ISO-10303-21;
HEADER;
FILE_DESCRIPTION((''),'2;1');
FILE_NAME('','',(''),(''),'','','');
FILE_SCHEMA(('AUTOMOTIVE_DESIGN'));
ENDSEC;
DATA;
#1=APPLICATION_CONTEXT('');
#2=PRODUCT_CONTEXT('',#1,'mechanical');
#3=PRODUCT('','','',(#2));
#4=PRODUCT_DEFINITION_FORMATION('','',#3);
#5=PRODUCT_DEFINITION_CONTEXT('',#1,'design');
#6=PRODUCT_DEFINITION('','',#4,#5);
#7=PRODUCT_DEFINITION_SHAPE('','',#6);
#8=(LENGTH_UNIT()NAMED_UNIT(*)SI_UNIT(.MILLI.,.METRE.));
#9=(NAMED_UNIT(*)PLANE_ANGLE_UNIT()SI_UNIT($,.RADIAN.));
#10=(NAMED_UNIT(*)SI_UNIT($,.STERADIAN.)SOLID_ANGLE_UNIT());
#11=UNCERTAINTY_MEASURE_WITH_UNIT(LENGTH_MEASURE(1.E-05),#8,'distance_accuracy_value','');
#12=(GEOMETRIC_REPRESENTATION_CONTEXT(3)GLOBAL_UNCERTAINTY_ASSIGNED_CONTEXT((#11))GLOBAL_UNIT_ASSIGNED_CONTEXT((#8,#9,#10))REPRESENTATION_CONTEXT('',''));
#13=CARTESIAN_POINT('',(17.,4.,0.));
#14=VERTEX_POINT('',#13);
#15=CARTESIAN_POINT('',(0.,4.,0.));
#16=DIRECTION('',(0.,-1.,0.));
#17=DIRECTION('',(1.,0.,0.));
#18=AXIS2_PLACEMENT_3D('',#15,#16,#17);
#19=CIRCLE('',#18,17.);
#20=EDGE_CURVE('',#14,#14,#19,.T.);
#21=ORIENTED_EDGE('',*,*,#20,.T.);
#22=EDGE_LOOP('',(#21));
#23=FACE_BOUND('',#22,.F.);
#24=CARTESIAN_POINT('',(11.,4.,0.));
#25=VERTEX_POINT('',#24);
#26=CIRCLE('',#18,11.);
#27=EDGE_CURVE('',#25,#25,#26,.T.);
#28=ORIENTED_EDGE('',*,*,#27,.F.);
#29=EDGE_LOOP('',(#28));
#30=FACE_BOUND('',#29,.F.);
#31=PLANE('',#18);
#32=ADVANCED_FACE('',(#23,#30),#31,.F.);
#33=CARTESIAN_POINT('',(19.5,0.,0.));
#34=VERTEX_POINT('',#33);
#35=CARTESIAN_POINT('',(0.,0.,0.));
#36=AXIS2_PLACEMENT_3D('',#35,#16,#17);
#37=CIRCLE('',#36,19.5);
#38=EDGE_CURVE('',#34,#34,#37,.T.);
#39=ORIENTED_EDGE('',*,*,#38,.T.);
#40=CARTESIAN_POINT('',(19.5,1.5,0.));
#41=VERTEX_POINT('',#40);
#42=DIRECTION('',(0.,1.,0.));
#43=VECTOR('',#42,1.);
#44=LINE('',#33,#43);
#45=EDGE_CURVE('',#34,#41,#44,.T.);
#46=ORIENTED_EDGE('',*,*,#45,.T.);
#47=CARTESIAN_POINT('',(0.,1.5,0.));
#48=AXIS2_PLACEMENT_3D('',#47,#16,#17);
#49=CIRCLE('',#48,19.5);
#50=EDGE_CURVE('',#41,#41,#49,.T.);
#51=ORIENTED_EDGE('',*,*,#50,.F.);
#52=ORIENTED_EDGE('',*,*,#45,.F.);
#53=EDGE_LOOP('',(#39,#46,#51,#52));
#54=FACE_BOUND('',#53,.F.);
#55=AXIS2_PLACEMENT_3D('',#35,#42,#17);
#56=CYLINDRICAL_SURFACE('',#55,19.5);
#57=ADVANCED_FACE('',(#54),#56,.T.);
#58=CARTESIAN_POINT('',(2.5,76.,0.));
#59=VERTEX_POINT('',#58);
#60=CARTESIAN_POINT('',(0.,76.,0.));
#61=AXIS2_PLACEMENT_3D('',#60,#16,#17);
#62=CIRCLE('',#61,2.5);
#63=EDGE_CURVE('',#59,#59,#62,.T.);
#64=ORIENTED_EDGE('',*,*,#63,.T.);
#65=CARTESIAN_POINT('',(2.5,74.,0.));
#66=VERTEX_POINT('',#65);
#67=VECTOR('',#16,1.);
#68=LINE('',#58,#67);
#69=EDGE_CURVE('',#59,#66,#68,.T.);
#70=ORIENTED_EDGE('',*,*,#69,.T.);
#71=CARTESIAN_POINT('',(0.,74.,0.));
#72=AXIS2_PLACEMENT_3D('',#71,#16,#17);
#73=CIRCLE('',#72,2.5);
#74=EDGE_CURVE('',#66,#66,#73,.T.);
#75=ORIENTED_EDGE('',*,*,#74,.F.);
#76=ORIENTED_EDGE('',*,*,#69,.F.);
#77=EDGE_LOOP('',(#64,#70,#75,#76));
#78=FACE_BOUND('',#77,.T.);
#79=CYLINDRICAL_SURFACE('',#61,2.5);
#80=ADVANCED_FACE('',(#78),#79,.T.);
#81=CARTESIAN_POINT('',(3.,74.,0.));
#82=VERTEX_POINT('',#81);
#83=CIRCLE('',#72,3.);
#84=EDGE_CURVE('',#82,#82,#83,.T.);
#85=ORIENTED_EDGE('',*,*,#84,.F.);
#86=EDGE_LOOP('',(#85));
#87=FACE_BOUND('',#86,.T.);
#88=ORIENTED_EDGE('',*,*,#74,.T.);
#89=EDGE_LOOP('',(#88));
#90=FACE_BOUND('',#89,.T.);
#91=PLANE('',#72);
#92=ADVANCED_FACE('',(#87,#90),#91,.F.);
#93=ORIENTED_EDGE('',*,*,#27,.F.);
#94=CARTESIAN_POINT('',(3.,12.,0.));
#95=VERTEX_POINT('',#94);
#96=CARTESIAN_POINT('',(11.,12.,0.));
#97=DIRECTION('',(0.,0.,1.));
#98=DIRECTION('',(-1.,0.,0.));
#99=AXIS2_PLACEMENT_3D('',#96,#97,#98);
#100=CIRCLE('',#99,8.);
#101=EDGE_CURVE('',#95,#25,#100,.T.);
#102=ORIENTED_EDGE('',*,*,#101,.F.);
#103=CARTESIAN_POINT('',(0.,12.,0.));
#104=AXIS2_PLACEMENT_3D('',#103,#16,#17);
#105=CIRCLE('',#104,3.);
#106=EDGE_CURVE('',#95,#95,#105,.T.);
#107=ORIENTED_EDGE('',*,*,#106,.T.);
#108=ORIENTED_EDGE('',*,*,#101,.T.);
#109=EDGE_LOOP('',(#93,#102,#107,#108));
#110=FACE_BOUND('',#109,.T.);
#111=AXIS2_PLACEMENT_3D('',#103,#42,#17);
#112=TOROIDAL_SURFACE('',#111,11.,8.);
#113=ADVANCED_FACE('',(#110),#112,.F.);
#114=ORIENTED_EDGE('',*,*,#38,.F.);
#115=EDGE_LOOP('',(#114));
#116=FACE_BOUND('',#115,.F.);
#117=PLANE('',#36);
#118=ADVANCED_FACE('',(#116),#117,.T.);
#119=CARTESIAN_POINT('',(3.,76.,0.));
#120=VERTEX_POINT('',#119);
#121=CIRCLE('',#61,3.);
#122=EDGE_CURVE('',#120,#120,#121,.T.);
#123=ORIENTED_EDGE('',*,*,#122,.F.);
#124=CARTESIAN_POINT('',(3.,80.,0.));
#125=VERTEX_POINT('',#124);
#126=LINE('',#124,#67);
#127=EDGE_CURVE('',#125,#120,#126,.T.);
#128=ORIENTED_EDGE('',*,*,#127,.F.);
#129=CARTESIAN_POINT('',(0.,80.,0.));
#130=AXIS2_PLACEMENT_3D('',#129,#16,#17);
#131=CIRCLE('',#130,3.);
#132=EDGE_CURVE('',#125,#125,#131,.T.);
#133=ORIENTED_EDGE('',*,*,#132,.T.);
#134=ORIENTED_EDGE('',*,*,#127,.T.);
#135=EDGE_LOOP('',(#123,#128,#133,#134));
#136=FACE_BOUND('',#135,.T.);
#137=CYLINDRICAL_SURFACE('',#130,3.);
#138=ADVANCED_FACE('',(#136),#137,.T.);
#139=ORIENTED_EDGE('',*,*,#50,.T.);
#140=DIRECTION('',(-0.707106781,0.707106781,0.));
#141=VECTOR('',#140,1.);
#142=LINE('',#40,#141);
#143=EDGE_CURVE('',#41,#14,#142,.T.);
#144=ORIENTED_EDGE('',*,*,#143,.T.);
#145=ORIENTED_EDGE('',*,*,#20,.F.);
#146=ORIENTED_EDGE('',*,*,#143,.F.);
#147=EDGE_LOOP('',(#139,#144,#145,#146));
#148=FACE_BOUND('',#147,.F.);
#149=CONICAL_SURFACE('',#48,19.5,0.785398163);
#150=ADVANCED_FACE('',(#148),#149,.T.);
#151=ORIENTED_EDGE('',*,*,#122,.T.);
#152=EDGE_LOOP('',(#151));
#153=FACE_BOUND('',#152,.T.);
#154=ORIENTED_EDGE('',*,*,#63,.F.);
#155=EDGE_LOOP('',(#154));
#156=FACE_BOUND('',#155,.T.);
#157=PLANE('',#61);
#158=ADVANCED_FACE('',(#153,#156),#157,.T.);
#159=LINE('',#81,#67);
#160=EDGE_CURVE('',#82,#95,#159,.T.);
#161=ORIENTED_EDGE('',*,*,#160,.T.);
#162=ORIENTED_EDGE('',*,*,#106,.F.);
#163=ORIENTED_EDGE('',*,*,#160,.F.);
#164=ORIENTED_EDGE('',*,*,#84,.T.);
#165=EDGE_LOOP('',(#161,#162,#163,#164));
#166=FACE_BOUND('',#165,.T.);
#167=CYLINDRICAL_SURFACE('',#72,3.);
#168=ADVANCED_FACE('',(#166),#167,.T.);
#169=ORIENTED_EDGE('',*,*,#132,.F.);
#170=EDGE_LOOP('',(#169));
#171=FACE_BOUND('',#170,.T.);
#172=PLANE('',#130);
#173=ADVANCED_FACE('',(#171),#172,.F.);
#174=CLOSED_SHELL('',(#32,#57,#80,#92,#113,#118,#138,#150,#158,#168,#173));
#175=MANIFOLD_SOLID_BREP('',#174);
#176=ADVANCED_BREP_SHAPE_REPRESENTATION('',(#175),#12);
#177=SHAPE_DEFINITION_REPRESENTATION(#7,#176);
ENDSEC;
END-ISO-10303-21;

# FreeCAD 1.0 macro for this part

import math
import FreeCAD as App
import Part
import Sketcher

V = App.Vector
Q = App.Units.Quantity

doc = App.newDocument("Part")
params = doc.addObject("Spreadsheet::Sheet", "Params")
for row, (alias, value) in enumerate([
    ("sketch1_radius", "8 mm"),
    ("sketch1_width", "3 mm"),
    ("sketch1_height", "80 mm"),
    ("sketch1_height2", "2 mm"),
    ("sketch1_height3", "4 mm"),
    ("revolution_angle", "360 deg"),
], start=1):
    params.set(f"A{row}", alias)
    params.set(f"B{row}", "=" + value)
    params.setAlias(f"B{row}", alias)

body = doc.addObject("PartDesign::Body", "Body")

sketch1 = doc.addObject("Sketcher::SketchObject", "Sketch")
body.addObject(sketch1)
sketch1.AttachmentSupport = (doc.XY_Plane, [""])
sketch1.MapMode = "FlatFace"
sketch1.addGeometry([
    Part.LineSegment(V(0, 80, 0), V(0, 0, 0)),
    Part.LineSegment(V(0, 0, 0), V(19.5, 0, 0)),
    Part.LineSegment(V(19.5, 0, 0), V(19.5, 1.5, 0)),
    Part.LineSegment(V(19.5, 1.5, 0), V(17, 4, 0)),
    Part.LineSegment(V(17, 4, 0), V(11, 4, 0)),
    Part.ArcOfCircle(Part.Circle(V(11, 12, 0), V(0, 0, 1), 8), math.radians(180), math.radians(270)),
    Part.LineSegment(V(3, 12, 0), V(3, 74, 0)),
    Part.LineSegment(V(3, 74, 0), V(2.5, 74, 0)),
    Part.LineSegment(V(2.5, 74, 0), V(2.5, 76, 0)),
    Part.LineSegment(V(2.5, 76, 0), V(3, 76, 0)),
    Part.LineSegment(V(3, 76, 0), V(3, 80, 0)),
    Part.LineSegment(V(3, 80, 0), V(0, 80, 0)),
], False)
sketch1.addConstraint([
    Sketcher.Constraint("Coincident", 0, 2, 1, 1),
    Sketcher.Constraint("Coincident", 1, 2, 2, 1),
    Sketcher.Constraint("Coincident", 2, 2, 3, 1),
    Sketcher.Constraint("Coincident", 3, 2, 4, 1),
    Sketcher.Constraint("Tangent", 4, 2, 5, 2),
    Sketcher.Constraint("Tangent", 5, 1, 6, 1),
    Sketcher.Constraint("Coincident", 6, 2, 7, 1),
    Sketcher.Constraint("Coincident", 7, 2, 8, 1),
    Sketcher.Constraint("Coincident", 8, 2, 9, 1),
    Sketcher.Constraint("Coincident", 9, 2, 10, 1),
    Sketcher.Constraint("Coincident", 10, 2, 11, 1),
    Sketcher.Constraint("Coincident", 11, 2, 0, 1),
    Sketcher.Constraint("Vertical", 0),
    Sketcher.Constraint("Horizontal", 1),
    Sketcher.Constraint("Vertical", 2),
    Sketcher.Constraint("Horizontal", 4),
    Sketcher.Constraint("Vertical", 6),
    Sketcher.Constraint("Horizontal", 7),
    Sketcher.Constraint("Vertical", 8),
    Sketcher.Constraint("Horizontal", 9),
    Sketcher.Constraint("Vertical", 10),
    Sketcher.Constraint("Horizontal", 11),
    Sketcher.Constraint("Coincident", 0, 2, -1, 1),
    Sketcher.Constraint("Vertical", 6, 2, 9, 2),
    Sketcher.Constraint("Radius", 5, Q("8 mm")),
    Sketcher.Constraint("DistanceX", 11, 2, 11, 1, Q("3 mm")),
    Sketcher.Constraint("DistanceY", 0, 2, 0, 1, Q("80 mm")),
    Sketcher.Constraint("DistanceY", 8, 1, 8, 2, Q("2 mm")),
    Sketcher.Constraint("DistanceY", 10, 1, 10, 2, Q("4 mm")),
    Sketcher.Constraint("DistanceX", 1, 1, 1, 2, Q("19.5 mm")),
    Sketcher.Constraint("DistanceX", 7, 2, 7, 1, Q("0.5 mm")),
    Sketcher.Constraint("DistanceY", 2, 1, 2, 2, Q("1.5 mm")),
    Sketcher.Constraint("DistanceX", -1, 1, 3, 2, Q("17 mm")),
    Sketcher.Constraint("DistanceY", -1, 1, 3, 2, Q("4 mm")),
])
sketch1.setExpression("Constraints[24]", "Params.sketch1_radius")
sketch1.setExpression("Constraints[25]", "Params.sketch1_width")
sketch1.setExpression("Constraints[26]", "Params.sketch1_height")
sketch1.setExpression("Constraints[27]", "Params.sketch1_height2")
sketch1.setExpression("Constraints[28]", "Params.sketch1_height3")
revolution = doc.addObject("PartDesign::Revolution", "Revolution")
body.addObject(revolution)
revolution.Profile = sketch1
revolution.ReferenceAxis = (sketch1, ["V_Axis"])
revolution.setExpression("Angle", "Params.revolution_angle")

doc.recompute()
